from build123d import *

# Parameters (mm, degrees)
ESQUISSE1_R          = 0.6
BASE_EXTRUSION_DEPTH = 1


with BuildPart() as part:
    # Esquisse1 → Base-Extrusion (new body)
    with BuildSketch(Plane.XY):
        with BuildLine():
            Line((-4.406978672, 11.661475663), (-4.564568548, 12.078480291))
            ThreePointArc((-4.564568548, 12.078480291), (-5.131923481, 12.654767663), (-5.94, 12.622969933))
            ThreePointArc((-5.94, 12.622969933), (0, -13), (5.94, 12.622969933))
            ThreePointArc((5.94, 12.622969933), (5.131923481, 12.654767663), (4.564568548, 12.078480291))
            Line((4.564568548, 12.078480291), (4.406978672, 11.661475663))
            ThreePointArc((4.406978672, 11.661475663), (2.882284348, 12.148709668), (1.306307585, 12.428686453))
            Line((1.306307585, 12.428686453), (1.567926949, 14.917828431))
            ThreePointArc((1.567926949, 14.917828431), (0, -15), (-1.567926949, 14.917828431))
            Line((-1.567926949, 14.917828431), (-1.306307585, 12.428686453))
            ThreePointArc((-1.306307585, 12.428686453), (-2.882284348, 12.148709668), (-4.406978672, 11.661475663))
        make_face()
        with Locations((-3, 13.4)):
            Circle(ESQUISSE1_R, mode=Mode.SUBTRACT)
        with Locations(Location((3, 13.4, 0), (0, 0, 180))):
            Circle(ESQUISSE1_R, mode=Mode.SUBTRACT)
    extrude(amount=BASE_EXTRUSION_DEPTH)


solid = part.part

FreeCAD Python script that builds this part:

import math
import FreeCAD as App
import Part
import Sketcher
Q = App.Units.Quantity

doc = App.newDocument("Part")
body = doc.addObject("PartDesign::Body", "Body")

# Sketch on XY plane
sketch1 = body.newObject("Sketcher::SketchObject", "Sketch")
sketch1.AttachmentSupport = (doc.getObject("XY_Plane"), [""])
sketch1.MapMode = "FlatFace"
sketch1.addGeometry(Part.LineSegment(App.Vector(-4.56, 12.08, 0), App.Vector(-4.41, 11.66, 0)), False)
sketch1.addGeometry(Part.ArcOfCircle(Part.Circle(App.Vector(0, 0.5, 0), App.Vector(0, 0, 1), 12), math.radians(96.25), math.radians(111.55)), False)
sketch1.addGeometry(Part.LineSegment(App.Vector(-1.31, 12.43, 0), App.Vector(-1.57, 14.92, 0)), False)
sketch1.addGeometry(Part.ArcOfCircle(Part.Circle(App.Vector(0, 0, 0), App.Vector(0, 0, 1), 15), math.radians(96), math.radians(444)), False)
sketch1.addGeometry(Part.LineSegment(App.Vector(1.57, 14.92, 0), App.Vector(1.31, 12.43, 0)), False)
sketch1.addGeometry(Part.ArcOfCircle(Part.Circle(App.Vector(0, 0.5, 0), App.Vector(0, 0, 1), 12), math.radians(68.45), math.radians(83.75)), False)
sketch1.addGeometry(Part.LineSegment(App.Vector(4.41, 11.66, 0), App.Vector(4.56, 12.08, 0)), False)
sketch1.addGeometry(Part.ArcOfCircle(Part.Circle(App.Vector(5.5, 11.72, 0), App.Vector(0, 0, 1), 1), math.radians(64), math.radians(159)), False)
sketch1.addGeometry(Part.ArcOfCircle(Part.Circle(App.Vector(0, 0.5, 0), App.Vector(0, 0, 1), 13.5), math.radians(116), math.radians(424)), False)
sketch1.addGeometry(Part.ArcOfCircle(Part.Circle(App.Vector(-5.5, 11.72, 0), App.Vector(0, 0, 1), 1), math.radians(21), math.radians(116)), False)
sketch1.addGeometry(Part.Circle(App.Vector(3, 13.4, 0), App.Vector(0, 0, 1), 0.6), False)
sketch1.addGeometry(Part.Circle(App.Vector(-3, 13.4, 0), App.Vector(0, 0, 1), 0.6), False)
sketch1.addConstraint(Sketcher.Constraint("Coincident", 0, 2, 1, 2))
sketch1.addConstraint(Sketcher.Constraint("Coincident", 1, 1, 2, 1))
sketch1.addConstraint(Sketcher.Constraint("Coincident", 2, 2, 3, 1))
sketch1.addConstraint(Sketcher.Constraint("Coincident", 3, 2, 4, 1))
sketch1.addConstraint(Sketcher.Constraint("Coincident", 4, 2, 5, 2))
sketch1.addConstraint(Sketcher.Constraint("Coincident", 5, 1, 6, 1))
sketch1.addConstraint(Sketcher.Constraint("Tangent", 6, 2, 7, 2))
sketch1.addConstraint(Sketcher.Constraint("Tangent", 7, 1, 8, 2))
sketch1.addConstraint(Sketcher.Constraint("Tangent", 8, 1, 9, 2))
sketch1.addConstraint(Sketcher.Constraint("Tangent", 9, 1, 0, 1))
sketch1.addConstraint(Sketcher.Constraint("Coincident", 3, 3, -1, 1))
sketch1.addConstraint(Sketcher.Constraint("Coincident", 5, 3, 1, 3))
sketch1.addConstraint(Sketcher.Constraint("Coincident", 8, 3, 1, 3))
sketch1.addConstraint(Sketcher.Constraint("Equal", 1, 5))
sketch1.addConstraint(Sketcher.Constraint("Equal", 7, 9))
sketch1.addConstraint(Sketcher.Constraint("Equal", 10, 11))
sketch1.addConstraint(Sketcher.Constraint("Symmetric", 7, 3, 9, 3, -2))
sketch1.addConstraint(Sketcher.Constraint("Symmetric", 10, 3, 11, 3, -2))
sketch1.addConstraint(Sketcher.Constraint("Horizontal", 2, 2, 3, 2))
sketch1.addConstraint(Sketcher.Constraint("Horizontal", 1, 1, 4, 2))
sketch1.addConstraint(Sketcher.Constraint("Horizontal", 0, 2, 5, 1))
sketch1.addConstraint(Sketcher.Constraint("Radius", 1, Q("12 mm")))
sketch1.addConstraint(Sketcher.Constraint("Radius", 3, Q("15 mm")))
sketch1.addConstraint(Sketcher.Constraint("Radius", 7, Q("1 mm")))
sketch1.addConstraint(Sketcher.Constraint("Diameter", 10, Q("1.2 mm")))
sketch1.addConstraint(Sketcher.Constraint("Radius", 8, Q("13.5 mm")))
sketch1.addConstraint(Sketcher.Constraint("Angle", 2, Q("96 deg")))
sketch1.addConstraint(Sketcher.Constraint("DistanceX", -1, 1, 10, 3, Q("3 mm")))
sketch1.addConstraint(Sketcher.Constraint("DistanceX", 9, 3, 7, 3, Q("11 mm")))
sketch1.addConstraint(Sketcher.Constraint("DistanceY", -1, 1, 1, 3, Q("0.5 mm")))
sketch1.addConstraint(Sketcher.Constraint("DistanceY", -1, 1, 10, 3, Q("13.4 mm")))
sketch1.addConstraint(Sketcher.Constraint("Distance", 0, Q("0.445789 mm")))
sketch1.addConstraint(Sketcher.Constraint("DistanceY", -1, 1, 2, 2, Q("14.917828 mm")))
pad1 = body.newObject("PartDesign::Pad", "Pad")
pad1.Profile = sketch1
pad1.Length = 1

doc.recompute()
